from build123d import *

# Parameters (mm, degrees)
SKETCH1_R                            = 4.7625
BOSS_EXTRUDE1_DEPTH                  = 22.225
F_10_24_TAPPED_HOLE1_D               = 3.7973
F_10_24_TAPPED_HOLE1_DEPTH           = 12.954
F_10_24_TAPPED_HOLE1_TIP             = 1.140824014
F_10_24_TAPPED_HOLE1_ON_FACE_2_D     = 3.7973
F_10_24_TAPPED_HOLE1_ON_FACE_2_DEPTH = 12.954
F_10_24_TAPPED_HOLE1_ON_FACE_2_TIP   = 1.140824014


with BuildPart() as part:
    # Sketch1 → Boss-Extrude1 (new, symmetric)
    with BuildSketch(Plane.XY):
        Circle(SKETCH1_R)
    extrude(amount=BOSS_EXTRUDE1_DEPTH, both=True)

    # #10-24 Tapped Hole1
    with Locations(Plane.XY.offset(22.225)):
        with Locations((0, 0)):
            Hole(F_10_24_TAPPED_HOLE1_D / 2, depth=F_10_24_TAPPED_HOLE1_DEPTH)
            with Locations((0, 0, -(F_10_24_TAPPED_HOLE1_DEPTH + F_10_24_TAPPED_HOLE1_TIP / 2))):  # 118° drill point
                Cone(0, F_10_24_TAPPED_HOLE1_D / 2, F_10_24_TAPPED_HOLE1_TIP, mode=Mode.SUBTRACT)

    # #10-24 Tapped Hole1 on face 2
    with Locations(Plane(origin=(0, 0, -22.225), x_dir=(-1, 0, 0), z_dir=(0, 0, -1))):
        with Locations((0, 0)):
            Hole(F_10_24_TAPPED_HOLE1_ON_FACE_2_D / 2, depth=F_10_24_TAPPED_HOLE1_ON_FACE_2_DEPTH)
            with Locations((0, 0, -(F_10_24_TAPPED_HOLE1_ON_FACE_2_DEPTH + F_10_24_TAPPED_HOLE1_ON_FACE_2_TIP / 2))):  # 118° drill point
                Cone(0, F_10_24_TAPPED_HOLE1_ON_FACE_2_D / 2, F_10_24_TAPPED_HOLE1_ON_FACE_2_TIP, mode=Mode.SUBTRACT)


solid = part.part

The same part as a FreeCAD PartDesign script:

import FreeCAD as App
import Part
import Sketcher
from FreeCAD import Vector
Q = App.Units.Quantity

doc = App.newDocument("Part")
body = doc.addObject("PartDesign::Body", "Body")

sketch1 = doc.addObject("Sketcher::SketchObject", "Sketch")
body.addObject(sketch1)
sketch1.AttachmentSupport = (doc.XY_Plane, [""])
sketch1.MapMode = "FlatFace"
sketch1.addGeometry(Part.Circle(Vector(0, 0, 0), Vector(0, 0, 1), 4.8), False)
sketch1.addConstraint(Sketcher.Constraint("Coincident", 0, 3, -1, 1))
sketch1.addConstraint(Sketcher.Constraint("Diameter", 0, Q("0.375 in")))
pad1 = doc.addObject("PartDesign::Pad", "Pad")
body.addObject(pad1)
pad1.Profile = sketch1
pad1.Length = Q("1.75 in")
pad1.Midplane = True

sketch2 = doc.addObject("Sketcher::SketchObject", "Sketch001")
body.addObject(sketch2)
sketch2.AttachmentSupport = (doc.XY_Plane, [""])
sketch2.MapMode = "FlatFace"
sketch2.AttachmentOffset = App.Placement(Vector(0, 0, 0.875 * 25.4), App.Rotation())
sketch2.addGeometry(Part.Circle(Vector(0, 0, 0), Vector(0, 0, 1), 1.9), False)
sketch2.addConstraint(Sketcher.Constraint("Coincident", 0, 3, -1, 1))
sketch2.addConstraint(Sketcher.Constraint("Diameter", 0, Q("0.1495 in")))
doc.recompute()
hole = doc.addObject("PartDesign::Hole", "Hole")
body.addObject(hole)
hole.Profile = sketch2
hole.ThreadType = "None"
hole.Diameter = Q("0.1495 in")
hole.DepthType = "Dimension"
hole.Depth = Q("0.51 in")
hole.DrillPoint = "Angled"
hole.DrillPointAngle = 118

sketch3 = doc.addObject("Sketcher::SketchObject", "Sketch002")
body.addObject(sketch3)
sketch3.AttachmentSupport = (doc.XY_Plane, [""])
sketch3.MapMode = "FlatFace"
sketch3.AttachmentOffset = App.Placement(Vector(0, 0, -0.875 * 25.4), App.Rotation())
sketch3.addGeometry(Part.Circle(Vector(0, 0, 0), Vector(0, 0, 1), 1.9), False)
sketch3.addConstraint(Sketcher.Constraint("Coincident", 0, 3, -1, 1))
sketch3.addConstraint(Sketcher.Constraint("Diameter", 0, Q("0.1495 in")))
doc.recompute()
hole2 = doc.addObject("PartDesign::Hole", "Hole001")
body.addObject(hole2)
hole2.Profile = sketch3
hole2.ThreadType = "None"
hole2.Diameter = Q("0.1495 in")
hole2.DepthType = "Dimension"
hole2.Depth = Q("0.51 in")
hole2.DrillPoint = "Angled"
hole2.DrillPointAngle = 118
hole2.Reversed = True

doc.recompute()
